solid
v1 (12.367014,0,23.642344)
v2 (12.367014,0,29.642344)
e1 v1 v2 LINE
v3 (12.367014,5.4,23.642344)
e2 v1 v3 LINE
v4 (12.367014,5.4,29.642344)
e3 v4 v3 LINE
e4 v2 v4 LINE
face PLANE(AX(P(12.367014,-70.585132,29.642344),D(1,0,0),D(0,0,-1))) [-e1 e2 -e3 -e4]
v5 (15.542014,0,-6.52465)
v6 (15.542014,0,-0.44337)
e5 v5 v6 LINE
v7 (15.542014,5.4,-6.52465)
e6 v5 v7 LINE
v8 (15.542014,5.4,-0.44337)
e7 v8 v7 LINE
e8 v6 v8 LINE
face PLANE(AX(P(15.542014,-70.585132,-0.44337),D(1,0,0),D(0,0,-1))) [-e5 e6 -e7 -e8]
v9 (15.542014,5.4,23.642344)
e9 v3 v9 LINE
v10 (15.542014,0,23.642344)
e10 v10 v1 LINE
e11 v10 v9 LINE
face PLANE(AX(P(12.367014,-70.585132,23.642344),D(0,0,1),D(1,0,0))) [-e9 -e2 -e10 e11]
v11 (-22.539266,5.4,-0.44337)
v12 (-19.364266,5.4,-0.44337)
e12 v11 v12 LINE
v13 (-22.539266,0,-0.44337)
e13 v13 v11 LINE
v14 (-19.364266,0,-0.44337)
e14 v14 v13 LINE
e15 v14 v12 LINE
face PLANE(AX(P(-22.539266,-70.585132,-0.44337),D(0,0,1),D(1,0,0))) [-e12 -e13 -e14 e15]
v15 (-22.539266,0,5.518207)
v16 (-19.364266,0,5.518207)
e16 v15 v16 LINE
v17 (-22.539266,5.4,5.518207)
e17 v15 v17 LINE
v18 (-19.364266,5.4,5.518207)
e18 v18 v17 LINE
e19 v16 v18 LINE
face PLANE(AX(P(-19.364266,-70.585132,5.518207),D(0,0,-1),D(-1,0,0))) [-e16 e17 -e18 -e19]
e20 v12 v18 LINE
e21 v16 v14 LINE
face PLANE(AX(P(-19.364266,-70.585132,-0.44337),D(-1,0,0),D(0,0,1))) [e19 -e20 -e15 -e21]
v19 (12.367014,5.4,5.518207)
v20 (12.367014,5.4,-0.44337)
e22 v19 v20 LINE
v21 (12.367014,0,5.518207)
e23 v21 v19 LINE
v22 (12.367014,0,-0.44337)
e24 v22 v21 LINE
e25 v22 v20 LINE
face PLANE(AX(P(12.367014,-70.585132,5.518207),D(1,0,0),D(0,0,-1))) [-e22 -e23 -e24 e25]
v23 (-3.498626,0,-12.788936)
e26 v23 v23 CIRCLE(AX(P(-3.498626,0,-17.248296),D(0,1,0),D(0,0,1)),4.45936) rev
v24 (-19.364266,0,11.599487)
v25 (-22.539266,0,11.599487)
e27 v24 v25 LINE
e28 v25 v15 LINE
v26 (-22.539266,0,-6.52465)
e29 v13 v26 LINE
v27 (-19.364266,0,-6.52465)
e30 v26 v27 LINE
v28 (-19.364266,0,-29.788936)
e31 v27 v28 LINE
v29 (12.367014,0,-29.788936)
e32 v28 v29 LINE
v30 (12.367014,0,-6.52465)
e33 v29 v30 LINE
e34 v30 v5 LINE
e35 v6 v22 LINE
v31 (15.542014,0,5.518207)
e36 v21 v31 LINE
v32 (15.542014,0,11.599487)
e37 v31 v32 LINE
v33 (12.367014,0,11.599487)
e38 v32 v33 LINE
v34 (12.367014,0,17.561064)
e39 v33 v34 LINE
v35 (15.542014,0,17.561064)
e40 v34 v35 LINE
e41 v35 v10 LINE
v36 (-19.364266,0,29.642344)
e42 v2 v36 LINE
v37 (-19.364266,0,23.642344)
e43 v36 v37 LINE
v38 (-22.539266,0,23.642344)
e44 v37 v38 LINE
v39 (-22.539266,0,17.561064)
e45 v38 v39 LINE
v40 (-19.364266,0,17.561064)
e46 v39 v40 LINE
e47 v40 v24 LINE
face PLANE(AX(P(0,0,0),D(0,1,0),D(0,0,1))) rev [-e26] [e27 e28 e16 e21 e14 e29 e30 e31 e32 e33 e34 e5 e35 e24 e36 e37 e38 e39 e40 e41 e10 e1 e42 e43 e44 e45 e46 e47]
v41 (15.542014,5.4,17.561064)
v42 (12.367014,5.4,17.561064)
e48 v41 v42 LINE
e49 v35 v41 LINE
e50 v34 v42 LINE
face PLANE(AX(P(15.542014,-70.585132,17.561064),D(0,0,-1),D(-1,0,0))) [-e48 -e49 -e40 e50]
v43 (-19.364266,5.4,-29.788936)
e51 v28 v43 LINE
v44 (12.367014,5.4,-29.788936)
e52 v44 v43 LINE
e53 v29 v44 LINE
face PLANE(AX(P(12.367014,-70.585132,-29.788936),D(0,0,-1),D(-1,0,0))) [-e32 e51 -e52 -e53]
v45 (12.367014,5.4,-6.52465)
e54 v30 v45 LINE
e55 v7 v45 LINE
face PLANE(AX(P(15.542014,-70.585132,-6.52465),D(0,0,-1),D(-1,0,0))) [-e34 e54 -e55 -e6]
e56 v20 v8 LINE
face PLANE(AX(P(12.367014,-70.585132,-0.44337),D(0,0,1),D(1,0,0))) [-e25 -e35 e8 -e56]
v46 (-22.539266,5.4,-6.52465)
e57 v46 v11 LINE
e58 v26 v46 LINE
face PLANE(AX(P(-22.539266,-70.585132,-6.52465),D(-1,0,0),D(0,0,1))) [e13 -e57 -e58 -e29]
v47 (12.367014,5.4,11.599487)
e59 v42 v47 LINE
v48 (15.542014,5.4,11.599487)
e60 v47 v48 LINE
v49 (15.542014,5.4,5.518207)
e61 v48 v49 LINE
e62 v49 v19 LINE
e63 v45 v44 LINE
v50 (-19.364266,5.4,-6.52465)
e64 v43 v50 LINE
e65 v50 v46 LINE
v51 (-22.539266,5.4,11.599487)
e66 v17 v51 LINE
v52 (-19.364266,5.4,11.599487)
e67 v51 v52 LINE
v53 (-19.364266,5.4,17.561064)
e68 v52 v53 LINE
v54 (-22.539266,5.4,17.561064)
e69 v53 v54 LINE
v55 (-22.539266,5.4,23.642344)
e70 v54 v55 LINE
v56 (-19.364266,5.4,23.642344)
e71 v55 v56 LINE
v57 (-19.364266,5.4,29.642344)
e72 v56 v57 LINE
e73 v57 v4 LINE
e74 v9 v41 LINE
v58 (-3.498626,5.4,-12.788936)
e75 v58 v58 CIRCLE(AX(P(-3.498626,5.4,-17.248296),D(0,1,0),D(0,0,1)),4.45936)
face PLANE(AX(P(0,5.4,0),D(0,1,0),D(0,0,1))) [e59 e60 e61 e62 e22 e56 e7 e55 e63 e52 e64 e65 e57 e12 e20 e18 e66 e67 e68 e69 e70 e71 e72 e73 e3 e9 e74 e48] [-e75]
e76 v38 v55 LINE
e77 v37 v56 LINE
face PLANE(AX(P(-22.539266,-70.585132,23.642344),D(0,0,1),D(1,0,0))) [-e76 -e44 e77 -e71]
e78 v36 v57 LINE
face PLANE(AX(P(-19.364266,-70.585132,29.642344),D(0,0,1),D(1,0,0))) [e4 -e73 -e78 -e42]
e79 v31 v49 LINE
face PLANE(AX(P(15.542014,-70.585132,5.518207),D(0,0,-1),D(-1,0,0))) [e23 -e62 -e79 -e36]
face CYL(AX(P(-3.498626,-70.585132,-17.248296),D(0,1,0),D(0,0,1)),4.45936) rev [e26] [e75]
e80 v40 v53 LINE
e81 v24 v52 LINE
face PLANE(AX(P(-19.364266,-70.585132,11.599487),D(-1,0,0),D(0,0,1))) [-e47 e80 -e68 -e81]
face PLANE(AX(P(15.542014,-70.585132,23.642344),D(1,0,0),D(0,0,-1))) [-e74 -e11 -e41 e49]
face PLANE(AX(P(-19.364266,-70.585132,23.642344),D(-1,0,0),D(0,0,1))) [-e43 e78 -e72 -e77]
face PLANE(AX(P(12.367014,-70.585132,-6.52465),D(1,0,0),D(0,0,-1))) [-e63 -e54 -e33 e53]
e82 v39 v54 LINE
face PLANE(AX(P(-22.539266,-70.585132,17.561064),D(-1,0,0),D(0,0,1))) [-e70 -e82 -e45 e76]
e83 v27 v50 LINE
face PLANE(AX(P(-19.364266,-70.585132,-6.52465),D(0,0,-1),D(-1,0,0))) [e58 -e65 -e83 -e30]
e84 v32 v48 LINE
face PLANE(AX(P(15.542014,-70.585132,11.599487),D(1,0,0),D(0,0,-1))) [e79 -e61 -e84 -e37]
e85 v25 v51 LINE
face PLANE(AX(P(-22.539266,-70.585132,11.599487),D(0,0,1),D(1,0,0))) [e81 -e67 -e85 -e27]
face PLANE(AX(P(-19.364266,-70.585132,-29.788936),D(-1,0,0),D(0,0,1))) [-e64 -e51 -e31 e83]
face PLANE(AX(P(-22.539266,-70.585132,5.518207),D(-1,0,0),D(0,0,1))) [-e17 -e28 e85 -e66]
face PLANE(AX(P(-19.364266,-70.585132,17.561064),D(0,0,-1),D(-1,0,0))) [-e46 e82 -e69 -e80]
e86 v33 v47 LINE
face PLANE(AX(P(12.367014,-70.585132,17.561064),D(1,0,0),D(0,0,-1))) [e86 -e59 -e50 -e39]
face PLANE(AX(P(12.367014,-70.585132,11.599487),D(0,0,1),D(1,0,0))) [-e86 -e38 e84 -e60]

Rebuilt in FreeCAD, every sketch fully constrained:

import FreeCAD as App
import Part
import Sketcher

V = App.Vector


def add_polygon(sketch, points):
    """Adds a closed chain of lines whose ends are joined by coincident constraints."""
    first, n = sketch.GeometryCount, len(points)
    for a, b in zip(points, points[1:] + points[:1]):
        sketch.addGeometry(Part.LineSegment(App.Vector(*a, 0), App.Vector(*b, 0)), False)
    for i in range(n):
        sketch.addConstraint(Sketcher.Constraint("Coincident", first + i, 2, first + (i + 1) % n, 1))

doc = App.newDocument("Part")
body = doc.addObject("PartDesign::Body", "Body")

# Sketch on XZ plane
sketch1 = body.newObject("Sketcher::SketchObject", "Sketch")
sketch1.AttachmentSupport = (doc.getObject("XZ_Plane"), [""])
sketch1.MapMode = "FlatFace"
add_polygon(sketch1, [(-19.323626, 23.601704), (-19.323626, 29.601704), (12.326374, 29.601704), (12.326374, 23.601704), (15.501374, 23.601704), (15.501374, 17.601704), (12.326374, 17.601704), (12.326374, 11.558847), (15.501374, 11.558847), (15.501374, 5.558847), (12.326374, 5.558847), (12.326374, -0.48401), (15.501374, -0.48401), (15.501374, -6.48401), (12.326374, -6.48401), (12.326374, -29.748296), (-19.323626, -29.748296), (-19.323626, -6.48401), (-22.498626, -6.48401), (-22.498626, -0.48401), (-19.323626, -0.48401), (-19.323626, 5.558847), (-22.498626, 5.558847), (-22.498626, 11.558847), (-19.323626, 11.558847), (-19.323626, 17.601704), (-22.498626, 17.601704), (-22.498626, 23.601704)])  # lines 0-27
sketch1.addGeometry(Part.Circle(V(-3.498626, -17.248296, 0), V(0, 0, 1), 4.5), False)  # 28
sketch1.addConstraint([
    Sketcher.Constraint("Vertical", 0),
    Sketcher.Constraint("Horizontal", 1),
    Sketcher.Constraint("Vertical", 2),
    Sketcher.Constraint("Horizontal", 3),
    Sketcher.Constraint("Vertical", 4),
    Sketcher.Constraint("Horizontal", 5),
    Sketcher.Constraint("Vertical", 6),
    Sketcher.Constraint("Horizontal", 7),
    Sketcher.Constraint("Vertical", 8),
    Sketcher.Constraint("Horizontal", 9),
    Sketcher.Constraint("Vertical", 10),
    Sketcher.Constraint("Horizontal", 11),
    Sketcher.Constraint("Vertical", 12),
    Sketcher.Constraint("Horizontal", 13),
    Sketcher.Constraint("Vertical", 14),
    Sketcher.Constraint("Horizontal", 15),
    Sketcher.Constraint("Vertical", 16),
    Sketcher.Constraint("Horizontal", 17),
    Sketcher.Constraint("Vertical", 18),
    Sketcher.Constraint("Horizontal", 19),
    Sketcher.Constraint("Vertical", 20),
    Sketcher.Constraint("Horizontal", 21),
    Sketcher.Constraint("Vertical", 22),
    Sketcher.Constraint("Horizontal", 23),
    Sketcher.Constraint("Vertical", 24),
    Sketcher.Constraint("Horizontal", 25),
    Sketcher.Constraint("Vertical", 26),
    Sketcher.Constraint("Horizontal", 27),
    Sketcher.Constraint("Horizontal", 13, 2, 16, 2),
    Sketcher.Constraint("Horizontal", 11, 2, 18, 2),
    Sketcher.Constraint("Horizontal", 9, 2, 20, 2),
    Sketcher.Constraint("Horizontal", 7, 2, 22, 2),
    Sketcher.Constraint("Horizontal", 5, 2, 24, 2),
    Sketcher.Constraint("Horizontal", 3, 2, 26, 2),
    Sketcher.Constraint("Vertical", 2, 2, 5, 2),
    Sketcher.Constraint("Vertical", 4, 2, 7, 2),
    Sketcher.Constraint("Vertical", 6, 2, 9, 2),
    Sketcher.Constraint("Vertical", 8, 2, 11, 2),
    Sketcher.Constraint("Vertical", 10, 2, 13, 2),
    Sketcher.Constraint("Vertical", 0, 2, 15, 2),
    Sketcher.Constraint("Vertical", 16, 2, 19, 2),
    Sketcher.Constraint("Vertical", 18, 2, 21, 2),
    Sketcher.Constraint("Vertical", 20, 2, 23, 2),
    Sketcher.Constraint("Vertical", 22, 2, 25, 2),
    Sketcher.Constraint("Equal", 13, 17),
    Sketcher.Constraint("Equal", 2, 4),
    Sketcher.Constraint("Equal", 4, 8),
    Sketcher.Constraint("Equal", 6, 10),
    Sketcher.Constraint("Equal", 8, 12),
    Sketcher.Constraint("Diameter", 28, 9.0),
    Sketcher.Constraint("DistanceY", 0, 1, 0, 2, 6.0),
    Sketcher.Constraint("DistanceX", 28, 3, 3, 2, 19.0),
    Sketcher.Constraint("DistanceX", 17, 2, 28, 3, 19.0),
    Sketcher.Constraint("DistanceX", 1, 1, 1, 2, 31.65),
    Sketcher.Constraint("DistanceY", 14, 2, 28, 3, 12.5),
    Sketcher.Constraint("DistanceY", 28, 3, 0, 2, 46.85),
    Sketcher.Constraint("DistanceY", 6, 2, 6, 1, 6.042857),
    Sketcher.Constraint("DistanceY", 10, 2, -1, 1, 0.48401),
    Sketcher.Constraint("DistanceX", 28, 3, -1, 1, 3.498626),
])
pad1 = body.newObject("PartDesign::Pad", "Pad")
pad1.Profile = sketch1
pad1.Length = 5.4
pad1.Reversed = True

# Sketch on XZ plane
sketch2 = body.newObject("Sketcher::SketchObject", "Sketch001")
sketch2.AttachmentSupport = (doc.getObject("XZ_Plane"), [""])
sketch2.MapMode = "FlatFace"
sketch2.AttachmentOffset = App.Placement(V(0, 0, -5.4), App.Rotation())
add_polygon(sketch2, [(12.367014, -6.52465), (12.367014, -29.788936), (-19.364266, -29.788936), (-19.364266, -6.52465), (-22.539266, -6.52465), (-22.539266, -0.44337), (-19.364266, -0.44337), (-19.364266, 5.518207), (-22.539266, 5.518207), (-22.539266, 11.599487), (-19.364266, 11.599487), (-19.364266, 17.561064), (-22.539266, 17.561064), (-22.539266, 23.642344), (-19.364266, 23.642344), (-19.364266, 29.642344), (12.367014, 29.642344), (12.367014, 23.642344), (15.542014, 23.642344), (15.542014, 17.561064), (12.367014, 17.561064), (12.367014, 11.599487), (15.542014, 11.599487), (15.542014, 5.518207), (12.367014, 5.518207), (12.367014, -0.44337), (15.542014, -0.44337), (15.542014, -6.52465)])  # lines 0-27
sketch2.addGeometry(Part.Circle(V(-3.498626, -17.248296, 0), V(0, 0, 1), 4.45936), False)  # 28
sketch2.addConstraint([
    Sketcher.Constraint("Vertical", 0),
    Sketcher.Constraint("Horizontal", 1),
    Sketcher.Constraint("Vertical", 2),
    Sketcher.Constraint("Horizontal", 3),
    Sketcher.Constraint("Vertical", 4),
    Sketcher.Constraint("Horizontal", 5),
    Sketcher.Constraint("Vertical", 6),
    Sketcher.Constraint("Horizontal", 7),
    Sketcher.Constraint("Vertical", 8),
    Sketcher.Constraint("Horizontal", 9),
    Sketcher.Constraint("Vertical", 10),
    Sketcher.Constraint("Horizontal", 11),
    Sketcher.Constraint("Vertical", 12),
    Sketcher.Constraint("Horizontal", 13),
    Sketcher.Constraint("Vertical", 14),
    Sketcher.Constraint("Horizontal", 15),
    Sketcher.Constraint("Vertical", 16),
    Sketcher.Constraint("Horizontal", 17),
    Sketcher.Constraint("Vertical", 18),
    Sketcher.Constraint("Horizontal", 19),
    Sketcher.Constraint("Vertical", 20),
    Sketcher.Constraint("Horizontal", 21),
    Sketcher.Constraint("Vertical", 22),
    Sketcher.Constraint("Horizontal", 23),
    Sketcher.Constraint("Vertical", 24),
    Sketcher.Constraint("Horizontal", 25),
    Sketcher.Constraint("Vertical", 26),
    Sketcher.Constraint("Horizontal", 27),
    Sketcher.Constraint("Horizontal", 13, 2, 16, 2),
    Sketcher.Constraint("Horizontal", 11, 2, 18, 2),
    Sketcher.Constraint("Horizontal", 9, 2, 20, 2),
    Sketcher.Constraint("Horizontal", 7, 2, 22, 2),
    Sketcher.Constraint("Horizontal", 5, 2, 24, 2),
    Sketcher.Constraint("Horizontal", 3, 2, 26, 2),
    Sketcher.Constraint("Vertical", 2, 2, 5, 2),
    Sketcher.Constraint("Vertical", 4, 2, 7, 2),
    Sketcher.Constraint("Vertical", 6, 2, 9, 2),
    Sketcher.Constraint("Vertical", 8, 2, 11, 2),
    Sketcher.Constraint("Vertical", 10, 2, 13, 2),
    Sketcher.Constraint("Vertical", 0, 2, 15, 2),
    Sketcher.Constraint("Vertical", 16, 2, 19, 2),
    Sketcher.Constraint("Vertical", 18, 2, 21, 2),
    Sketcher.Constraint("Vertical", 20, 2, 23, 2),
    Sketcher.Constraint("Vertical", 22, 2, 25, 2),
    Sketcher.Constraint("Equal", 13, 17),
    Sketcher.Constraint("Equal", 4, 8),
    Sketcher.Constraint("Equal", 6, 10),
    Sketcher.Constraint("Equal", 8, 12),
    Sketcher.Constraint("DistanceY", 14, 1, 14, 2, 6.0),
    Sketcher.Constraint("Diameter", 28, 8.91872),
    Sketcher.Constraint("DistanceX", 3, 2, 3, 1, 3.175),
    Sketcher.Constraint("DistanceX", 1, 2, 1, 1, 31.73128),
    Sketcher.Constraint("DistanceY", 4, 1, 4, 2, 6.08128),
    Sketcher.Constraint("DistanceY", 0, 2, 0, 1, 23.264286),
    Sketcher.Constraint("DistanceY", 6, 1, 6, 2, 5.961577),
    Sketcher.Constraint("DistanceY", 2, 2, -1, 1, 6.52465),
    Sketcher.Constraint("DistanceX", 28, 3, 0, 2, 15.86564),
    Sketcher.Constraint("DistanceY", 0, 2, 28, 3, 12.54064),
    Sketcher.Constraint("DistanceX", 28, 3, -1, 1, 3.498626),
])
pad2 = body.newObject("PartDesign::Pad", "Pad001")
pad2.Profile = sketch2
pad2.Length = 5.4

doc.recompute()
